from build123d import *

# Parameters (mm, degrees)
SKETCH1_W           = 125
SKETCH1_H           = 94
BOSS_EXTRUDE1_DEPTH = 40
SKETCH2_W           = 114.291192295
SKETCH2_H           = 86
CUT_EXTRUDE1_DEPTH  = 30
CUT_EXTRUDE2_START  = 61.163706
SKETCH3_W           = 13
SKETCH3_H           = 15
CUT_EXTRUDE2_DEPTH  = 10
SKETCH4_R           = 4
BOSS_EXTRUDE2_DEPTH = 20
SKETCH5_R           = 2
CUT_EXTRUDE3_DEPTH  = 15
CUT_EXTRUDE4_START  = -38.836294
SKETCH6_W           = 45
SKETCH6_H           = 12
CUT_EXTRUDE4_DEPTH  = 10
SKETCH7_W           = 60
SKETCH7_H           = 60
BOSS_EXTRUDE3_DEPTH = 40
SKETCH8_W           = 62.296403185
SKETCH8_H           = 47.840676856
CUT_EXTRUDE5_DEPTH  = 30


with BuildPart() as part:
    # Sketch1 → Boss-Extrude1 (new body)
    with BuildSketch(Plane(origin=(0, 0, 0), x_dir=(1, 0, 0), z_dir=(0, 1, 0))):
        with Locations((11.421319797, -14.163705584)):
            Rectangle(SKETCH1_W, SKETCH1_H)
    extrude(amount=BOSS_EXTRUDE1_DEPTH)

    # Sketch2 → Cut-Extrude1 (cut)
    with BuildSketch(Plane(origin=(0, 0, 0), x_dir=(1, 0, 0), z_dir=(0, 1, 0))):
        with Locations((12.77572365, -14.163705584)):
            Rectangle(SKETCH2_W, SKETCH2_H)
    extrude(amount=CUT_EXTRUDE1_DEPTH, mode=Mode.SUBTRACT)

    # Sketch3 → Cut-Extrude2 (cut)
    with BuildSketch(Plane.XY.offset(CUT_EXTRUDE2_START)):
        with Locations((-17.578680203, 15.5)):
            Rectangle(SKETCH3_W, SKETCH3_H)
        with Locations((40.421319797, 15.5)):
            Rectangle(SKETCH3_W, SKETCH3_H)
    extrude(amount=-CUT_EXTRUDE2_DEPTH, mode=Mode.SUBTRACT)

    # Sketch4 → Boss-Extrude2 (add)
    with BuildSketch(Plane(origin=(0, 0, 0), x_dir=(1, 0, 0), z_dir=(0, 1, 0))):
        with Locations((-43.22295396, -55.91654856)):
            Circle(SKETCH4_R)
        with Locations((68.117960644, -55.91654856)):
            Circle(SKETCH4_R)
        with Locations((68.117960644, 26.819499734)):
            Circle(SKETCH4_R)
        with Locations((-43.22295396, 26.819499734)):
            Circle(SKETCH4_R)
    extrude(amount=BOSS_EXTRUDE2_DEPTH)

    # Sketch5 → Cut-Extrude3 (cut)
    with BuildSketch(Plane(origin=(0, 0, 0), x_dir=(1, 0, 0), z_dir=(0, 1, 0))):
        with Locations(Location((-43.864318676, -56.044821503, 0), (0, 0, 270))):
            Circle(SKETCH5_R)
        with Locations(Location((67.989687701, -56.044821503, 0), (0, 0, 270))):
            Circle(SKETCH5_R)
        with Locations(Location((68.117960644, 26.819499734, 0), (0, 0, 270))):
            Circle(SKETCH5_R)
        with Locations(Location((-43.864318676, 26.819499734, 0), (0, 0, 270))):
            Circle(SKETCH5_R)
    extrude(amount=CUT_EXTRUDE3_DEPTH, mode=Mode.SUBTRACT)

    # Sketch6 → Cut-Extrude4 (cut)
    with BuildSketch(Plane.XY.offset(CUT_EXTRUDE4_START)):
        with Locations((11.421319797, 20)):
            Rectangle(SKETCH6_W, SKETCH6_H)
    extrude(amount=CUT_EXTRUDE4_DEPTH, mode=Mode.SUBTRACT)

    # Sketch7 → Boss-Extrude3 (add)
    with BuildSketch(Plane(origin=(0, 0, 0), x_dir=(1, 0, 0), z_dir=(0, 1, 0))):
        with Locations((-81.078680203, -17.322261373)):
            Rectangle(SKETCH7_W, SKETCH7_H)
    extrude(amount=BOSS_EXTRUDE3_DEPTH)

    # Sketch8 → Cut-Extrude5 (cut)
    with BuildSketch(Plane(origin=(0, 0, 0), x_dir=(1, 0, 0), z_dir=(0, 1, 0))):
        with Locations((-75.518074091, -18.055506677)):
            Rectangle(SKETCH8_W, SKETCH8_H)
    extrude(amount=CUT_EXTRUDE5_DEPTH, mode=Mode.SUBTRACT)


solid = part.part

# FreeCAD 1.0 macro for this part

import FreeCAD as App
import Part
import Sketcher
from FreeCAD import Vector


def add_polygon(sketch, points):
    """Adds a closed chain of lines whose ends are joined by coincident constraints."""
    first, n = sketch.GeometryCount, len(points)
    for a, b in zip(points, points[1:] + points[:1]):
        sketch.addGeometry(Part.LineSegment(App.Vector(*a, 0), App.Vector(*b, 0)), False)
    for i in range(n):
        sketch.addConstraint(Sketcher.Constraint("Coincident", first + i, 2, first + (i + 1) % n, 1))

doc = App.newDocument("Part")
body = doc.addObject("PartDesign::Body", "Body")

# Sketch on XZ plane
sketch1 = body.newObject("Sketcher::SketchObject", "Sketch")
sketch1.AttachmentSupport = (doc.getObject("XZ_Plane"), [""])
sketch1.MapMode = "FlatFace"
add_polygon(sketch1, [(-51, -33), (-51, 61), (74, 61), (74, -33)])  # lines 0-3
sketch1.addConstraint(Sketcher.Constraint("Vertical", 0))
sketch1.addConstraint(Sketcher.Constraint("Horizontal", 1))
sketch1.addConstraint(Sketcher.Constraint("Vertical", 2))
sketch1.addConstraint(Sketcher.Constraint("Horizontal", 3))
sketch1.addConstraint(Sketcher.Constraint("DistanceX", 1, 1, 1, 2, 125.0))
sketch1.addConstraint(Sketcher.Constraint("DistanceY", 0, 1, 0, 2, 94.0))
sketch1.addConstraint(Sketcher.Constraint("DistanceX", 0, 2, -1, 1, 51.07868))
sketch1.addConstraint(Sketcher.Constraint("DistanceY", -1, 1, 0, 2, 61.163706))
pad1 = body.newObject("PartDesign::Pad", "Pad")
pad1.Profile = sketch1
pad1.Length = 40
pad1.Reversed = True

# Sketch on XZ plane
sketch2 = body.newObject("Sketcher::SketchObject", "Sketch001")
sketch2.AttachmentSupport = (doc.getObject("XZ_Plane"), [""])
sketch2.MapMode = "FlatFace"
add_polygon(sketch2, [(-44, -29), (-44, 57), (70, 57), (70, -29)])  # lines 0-3
sketch2.addConstraint(Sketcher.Constraint("Vertical", 0))
sketch2.addConstraint(Sketcher.Constraint("Horizontal", 1))
sketch2.addConstraint(Sketcher.Constraint("Vertical", 2))
sketch2.addConstraint(Sketcher.Constraint("Horizontal", 3))
sketch2.addConstraint(Sketcher.Constraint("DistanceY", 0, 1, 0, 2, 86.0))
sketch2.addConstraint(Sketcher.Constraint("DistanceX", 1, 1, 1, 2, 114.291192))
sketch2.addConstraint(Sketcher.Constraint("DistanceX", -1, 1, 1, 2, 69.92132))
sketch2.addConstraint(Sketcher.Constraint("DistanceY", -1, 1, 0, 2, 57.163706))
pocket1 = body.newObject("PartDesign::Pocket", "Pocket")
pocket1.Profile = sketch2
pocket1.Length = 30

# Sketch on XY plane
sketch3 = body.newObject("Sketcher::SketchObject", "Sketch002")
sketch3.AttachmentSupport = (doc.getObject("XY_Plane"), [""])
sketch3.MapMode = "FlatFace"
sketch3.AttachmentOffset = App.Placement(Vector(0, 0, 61.163706), App.Rotation())
add_polygon(sketch3, [(-24, 23), (-24, 8), (-11, 8), (-11, 23)])  # lines 0-3
add_polygon(sketch3, [(34, 23), (34, 8), (47, 8), (47, 23)])  # lines 4-7
sketch3.addConstraint(Sketcher.Constraint("Vertical", 0))
sketch3.addConstraint(Sketcher.Constraint("Horizontal", 1))
sketch3.addConstraint(Sketcher.Constraint("Vertical", 2))
sketch3.addConstraint(Sketcher.Constraint("Horizontal", 3))
sketch3.addConstraint(Sketcher.Constraint("Vertical", 4))
sketch3.addConstraint(Sketcher.Constraint("Horizontal", 5))
sketch3.addConstraint(Sketcher.Constraint("Vertical", 6))
sketch3.addConstraint(Sketcher.Constraint("Horizontal", 7))
sketch3.addConstraint(Sketcher.Constraint("Horizontal", 1, 2, 4, 2))
sketch3.addConstraint(Sketcher.Constraint("Horizontal", 3, 2, 6, 2))
sketch3.addConstraint(Sketcher.Constraint("Equal", 3, 5))
sketch3.addConstraint(Sketcher.Constraint("DistanceX", 1, 1, 1, 2, 13.0))
sketch3.addConstraint(Sketcher.Constraint("DistanceY", 0, 2, 0, 1, 15.0))
sketch3.addConstraint(Sketcher.Constraint("DistanceY", -1, 1, 0, 2, 8.0))
sketch3.addConstraint(Sketcher.Constraint("DistanceX", 1, 2, 4, 2, 45.0))
sketch3.addConstraint(Sketcher.Constraint("DistanceX", 0, 2, -1, 1, 24.07868))
pocket2 = body.newObject("PartDesign::Pocket", "Pocket001")
pocket2.Profile = sketch3
pocket2.Length = 10

# Sketch on XZ plane
sketch4 = body.newObject("Sketcher::SketchObject", "Sketch003")
sketch4.AttachmentSupport = (doc.getObject("XZ_Plane"), [""])
sketch4.MapMode = "FlatFace"
sketch4.addGeometry(Part.Circle(Vector(-43.2, 55.9, 0), Vector(0, 0, 1), 4), False)
sketch4.addGeometry(Part.Circle(Vector(68.1, 55.9, 0), Vector(0, 0, 1), 4), False)
sketch4.addGeometry(Part.Circle(Vector(68.1, -26.8, 0), Vector(0, 0, 1), 4), False)
sketch4.addGeometry(Part.Circle(Vector(-43.2, -26.8, 0), Vector(0, 0, 1), 4), False)
sketch4.addConstraint(Sketcher.Constraint("Equal", 0, 1))
sketch4.addConstraint(Sketcher.Constraint("Equal", 1, 2))
sketch4.addConstraint(Sketcher.Constraint("Equal", 2, 3))
sketch4.addConstraint(Sketcher.Constraint("Horizontal", 0, 3, 1, 3))
sketch4.addConstraint(Sketcher.Constraint("Horizontal", 2, 3, 3, 3))
sketch4.addConstraint(Sketcher.Constraint("Vertical", 1, 3, 2, 3))
sketch4.addConstraint(Sketcher.Constraint("Vertical", 0, 3, 3, 3))
sketch4.addConstraint(Sketcher.Constraint("Diameter", 0, 8.0))
sketch4.addConstraint(Sketcher.Constraint("DistanceY", 2, 3, -1, 1, 26.8195))
sketch4.addConstraint(Sketcher.Constraint("DistanceY", -1, 1, 0, 3, 55.916549))
sketch4.addConstraint(Sketcher.Constraint("DistanceX", -1, 1, 1, 3, 68.117961))
sketch4.addConstraint(Sketcher.Constraint("DistanceX", 0, 3, -1, 1, 43.222954))
pad2 = body.newObject("PartDesign::Pad", "Pad001")
pad2.Profile = sketch4
pad2.Length = 20
pad2.Reversed = True

# Sketch on XZ plane
sketch5 = body.newObject("Sketcher::SketchObject", "Sketch004")
sketch5.AttachmentSupport = (doc.getObject("XZ_Plane"), [""])
sketch5.MapMode = "FlatFace"
sketch5.addGeometry(Part.Circle(Vector(-43.9, 56, 0), Vector(0, 0, 1), 2), False)
sketch5.addGeometry(Part.Circle(Vector(68, 56, 0), Vector(0, 0, 1), 2), False)
sketch5.addGeometry(Part.Circle(Vector(68.1, -26.8, 0), Vector(0, 0, 1), 2), False)
sketch5.addGeometry(Part.Circle(Vector(-43.9, -26.8, 0), Vector(0, 0, 1), 2), False)
sketch5.addConstraint(Sketcher.Constraint("Equal", 0, 1))
sketch5.addConstraint(Sketcher.Constraint("Equal", 1, 2))
sketch5.addConstraint(Sketcher.Constraint("Equal", 2, 3))
sketch5.addConstraint(Sketcher.Constraint("Horizontal", 0, 3, 1, 3))
sketch5.addConstraint(Sketcher.Constraint("Horizontal", 2, 3, 3, 3))
sketch5.addConstraint(Sketcher.Constraint("Vertical", 0, 3, 3, 3))
sketch5.addConstraint(Sketcher.Constraint("Diameter", 0, 4.0))
sketch5.addConstraint(Sketcher.Constraint("DistanceY", 2, 3, -1, 1, 26.8195))
sketch5.addConstraint(Sketcher.Constraint("DistanceX", 0, 3, -1, 1, 43.864319))
sketch5.addConstraint(Sketcher.Constraint("DistanceY", -1, 1, 0, 3, 56.044822))
sketch5.addConstraint(Sketcher.Constraint("DistanceX", -1, 1, 2, 3, 68.117961))
sketch5.addConstraint(Sketcher.Constraint("DistanceX", -1, 1, 1, 3, 67.989688))
pocket3 = body.newObject("PartDesign::Pocket", "Pocket002")
pocket3.Profile = sketch5
pocket3.Length = 15

# Sketch on XY plane
sketch6 = body.newObject("Sketcher::SketchObject", "Sketch005")
sketch6.AttachmentSupport = (doc.getObject("XY_Plane"), [""])
sketch6.MapMode = "FlatFace"
sketch6.AttachmentOffset = App.Placement(Vector(0, 0, -38.836294), App.Rotation())
add_polygon(sketch6, [(-11, 26), (-11, 14), (34, 14), (34, 26)])  # lines 0-3
sketch6.addConstraint(Sketcher.Constraint("Vertical", 0))
sketch6.addConstraint(Sketcher.Constraint("Horizontal", 1))
sketch6.addConstraint(Sketcher.Constraint("Vertical", 2))
sketch6.addConstraint(Sketcher.Constraint("Horizontal", 3))
sketch6.addConstraint(Sketcher.Constraint("DistanceX", 1, 1, 1, 2, 45.0))
sketch6.addConstraint(Sketcher.Constraint("DistanceY", 0, 2, 0, 1, 12.0))
sketch6.addConstraint(Sketcher.Constraint("DistanceY", -1, 1, 0, 2, 14.0))
sketch6.addConstraint(Sketcher.Constraint("DistanceX", 0, 2, -1, 1, 11.07868))
pocket4 = body.newObject("PartDesign::Pocket", "Pocket003")
pocket4.Profile = sketch6
pocket4.Length = 10
pocket4.Reversed = True

# Sketch on XZ plane
sketch7 = body.newObject("Sketcher::SketchObject", "Sketch006")
sketch7.AttachmentSupport = (doc.getObject("XZ_Plane"), [""])
sketch7.MapMode = "FlatFace"
add_polygon(sketch7, [(-111, -13), (-111, 47), (-51, 47), (-51, -13)])  # lines 0-3
sketch7.addConstraint(Sketcher.Constraint("Vertical", 0))
sketch7.addConstraint(Sketcher.Constraint("Horizontal", 1))
sketch7.addConstraint(Sketcher.Constraint("Vertical", 2))
sketch7.addConstraint(Sketcher.Constraint("Horizontal", 3))
sketch7.addConstraint(Sketcher.Constraint("Equal", 3, 0))
sketch7.addConstraint(Sketcher.Constraint("DistanceX", 1, 1, 1, 2, 60.0))
sketch7.addConstraint(Sketcher.Constraint("DistanceX", 0, 2, -1, 1, 111.07868))
sketch7.addConstraint(Sketcher.Constraint("DistanceY", -1, 1, 0, 2, 47.322261))
pad3 = body.newObject("PartDesign::Pad", "Pad002")
pad3.Profile = sketch7
pad3.Length = 40
pad3.Reversed = True

# Sketch on XZ plane
sketch8 = body.newObject("Sketcher::SketchObject", "Sketch007")
sketch8.AttachmentSupport = (doc.getObject("XZ_Plane"), [""])
sketch8.MapMode = "FlatFace"
add_polygon(sketch8, [(-107, -6), (-107, 42), (-44, 42), (-44, -6)])  # lines 0-3
sketch8.addConstraint(Sketcher.Constraint("Vertical", 0))
sketch8.addConstraint(Sketcher.Constraint("Horizontal", 1))
sketch8.addConstraint(Sketcher.Constraint("Vertical", 2))
sketch8.addConstraint(Sketcher.Constraint("Horizontal", 3))
sketch8.addConstraint(Sketcher.Constraint("DistanceX", 1, 1, 1, 2, 62.296403))
sketch8.addConstraint(Sketcher.Constraint("DistanceY", 0, 1, 0, 2, 47.840677))
sketch8.addConstraint(Sketcher.Constraint("DistanceY", 2, 2, -1, 1, 5.864832))
sketch8.addConstraint(Sketcher.Constraint("DistanceX", 0, 2, -1, 1, 106.666276))
pocket5 = body.newObject("PartDesign::Pocket", "Pocket004")
pocket5.Profile = sketch8
pocket5.Length = 30

doc.recompute()
